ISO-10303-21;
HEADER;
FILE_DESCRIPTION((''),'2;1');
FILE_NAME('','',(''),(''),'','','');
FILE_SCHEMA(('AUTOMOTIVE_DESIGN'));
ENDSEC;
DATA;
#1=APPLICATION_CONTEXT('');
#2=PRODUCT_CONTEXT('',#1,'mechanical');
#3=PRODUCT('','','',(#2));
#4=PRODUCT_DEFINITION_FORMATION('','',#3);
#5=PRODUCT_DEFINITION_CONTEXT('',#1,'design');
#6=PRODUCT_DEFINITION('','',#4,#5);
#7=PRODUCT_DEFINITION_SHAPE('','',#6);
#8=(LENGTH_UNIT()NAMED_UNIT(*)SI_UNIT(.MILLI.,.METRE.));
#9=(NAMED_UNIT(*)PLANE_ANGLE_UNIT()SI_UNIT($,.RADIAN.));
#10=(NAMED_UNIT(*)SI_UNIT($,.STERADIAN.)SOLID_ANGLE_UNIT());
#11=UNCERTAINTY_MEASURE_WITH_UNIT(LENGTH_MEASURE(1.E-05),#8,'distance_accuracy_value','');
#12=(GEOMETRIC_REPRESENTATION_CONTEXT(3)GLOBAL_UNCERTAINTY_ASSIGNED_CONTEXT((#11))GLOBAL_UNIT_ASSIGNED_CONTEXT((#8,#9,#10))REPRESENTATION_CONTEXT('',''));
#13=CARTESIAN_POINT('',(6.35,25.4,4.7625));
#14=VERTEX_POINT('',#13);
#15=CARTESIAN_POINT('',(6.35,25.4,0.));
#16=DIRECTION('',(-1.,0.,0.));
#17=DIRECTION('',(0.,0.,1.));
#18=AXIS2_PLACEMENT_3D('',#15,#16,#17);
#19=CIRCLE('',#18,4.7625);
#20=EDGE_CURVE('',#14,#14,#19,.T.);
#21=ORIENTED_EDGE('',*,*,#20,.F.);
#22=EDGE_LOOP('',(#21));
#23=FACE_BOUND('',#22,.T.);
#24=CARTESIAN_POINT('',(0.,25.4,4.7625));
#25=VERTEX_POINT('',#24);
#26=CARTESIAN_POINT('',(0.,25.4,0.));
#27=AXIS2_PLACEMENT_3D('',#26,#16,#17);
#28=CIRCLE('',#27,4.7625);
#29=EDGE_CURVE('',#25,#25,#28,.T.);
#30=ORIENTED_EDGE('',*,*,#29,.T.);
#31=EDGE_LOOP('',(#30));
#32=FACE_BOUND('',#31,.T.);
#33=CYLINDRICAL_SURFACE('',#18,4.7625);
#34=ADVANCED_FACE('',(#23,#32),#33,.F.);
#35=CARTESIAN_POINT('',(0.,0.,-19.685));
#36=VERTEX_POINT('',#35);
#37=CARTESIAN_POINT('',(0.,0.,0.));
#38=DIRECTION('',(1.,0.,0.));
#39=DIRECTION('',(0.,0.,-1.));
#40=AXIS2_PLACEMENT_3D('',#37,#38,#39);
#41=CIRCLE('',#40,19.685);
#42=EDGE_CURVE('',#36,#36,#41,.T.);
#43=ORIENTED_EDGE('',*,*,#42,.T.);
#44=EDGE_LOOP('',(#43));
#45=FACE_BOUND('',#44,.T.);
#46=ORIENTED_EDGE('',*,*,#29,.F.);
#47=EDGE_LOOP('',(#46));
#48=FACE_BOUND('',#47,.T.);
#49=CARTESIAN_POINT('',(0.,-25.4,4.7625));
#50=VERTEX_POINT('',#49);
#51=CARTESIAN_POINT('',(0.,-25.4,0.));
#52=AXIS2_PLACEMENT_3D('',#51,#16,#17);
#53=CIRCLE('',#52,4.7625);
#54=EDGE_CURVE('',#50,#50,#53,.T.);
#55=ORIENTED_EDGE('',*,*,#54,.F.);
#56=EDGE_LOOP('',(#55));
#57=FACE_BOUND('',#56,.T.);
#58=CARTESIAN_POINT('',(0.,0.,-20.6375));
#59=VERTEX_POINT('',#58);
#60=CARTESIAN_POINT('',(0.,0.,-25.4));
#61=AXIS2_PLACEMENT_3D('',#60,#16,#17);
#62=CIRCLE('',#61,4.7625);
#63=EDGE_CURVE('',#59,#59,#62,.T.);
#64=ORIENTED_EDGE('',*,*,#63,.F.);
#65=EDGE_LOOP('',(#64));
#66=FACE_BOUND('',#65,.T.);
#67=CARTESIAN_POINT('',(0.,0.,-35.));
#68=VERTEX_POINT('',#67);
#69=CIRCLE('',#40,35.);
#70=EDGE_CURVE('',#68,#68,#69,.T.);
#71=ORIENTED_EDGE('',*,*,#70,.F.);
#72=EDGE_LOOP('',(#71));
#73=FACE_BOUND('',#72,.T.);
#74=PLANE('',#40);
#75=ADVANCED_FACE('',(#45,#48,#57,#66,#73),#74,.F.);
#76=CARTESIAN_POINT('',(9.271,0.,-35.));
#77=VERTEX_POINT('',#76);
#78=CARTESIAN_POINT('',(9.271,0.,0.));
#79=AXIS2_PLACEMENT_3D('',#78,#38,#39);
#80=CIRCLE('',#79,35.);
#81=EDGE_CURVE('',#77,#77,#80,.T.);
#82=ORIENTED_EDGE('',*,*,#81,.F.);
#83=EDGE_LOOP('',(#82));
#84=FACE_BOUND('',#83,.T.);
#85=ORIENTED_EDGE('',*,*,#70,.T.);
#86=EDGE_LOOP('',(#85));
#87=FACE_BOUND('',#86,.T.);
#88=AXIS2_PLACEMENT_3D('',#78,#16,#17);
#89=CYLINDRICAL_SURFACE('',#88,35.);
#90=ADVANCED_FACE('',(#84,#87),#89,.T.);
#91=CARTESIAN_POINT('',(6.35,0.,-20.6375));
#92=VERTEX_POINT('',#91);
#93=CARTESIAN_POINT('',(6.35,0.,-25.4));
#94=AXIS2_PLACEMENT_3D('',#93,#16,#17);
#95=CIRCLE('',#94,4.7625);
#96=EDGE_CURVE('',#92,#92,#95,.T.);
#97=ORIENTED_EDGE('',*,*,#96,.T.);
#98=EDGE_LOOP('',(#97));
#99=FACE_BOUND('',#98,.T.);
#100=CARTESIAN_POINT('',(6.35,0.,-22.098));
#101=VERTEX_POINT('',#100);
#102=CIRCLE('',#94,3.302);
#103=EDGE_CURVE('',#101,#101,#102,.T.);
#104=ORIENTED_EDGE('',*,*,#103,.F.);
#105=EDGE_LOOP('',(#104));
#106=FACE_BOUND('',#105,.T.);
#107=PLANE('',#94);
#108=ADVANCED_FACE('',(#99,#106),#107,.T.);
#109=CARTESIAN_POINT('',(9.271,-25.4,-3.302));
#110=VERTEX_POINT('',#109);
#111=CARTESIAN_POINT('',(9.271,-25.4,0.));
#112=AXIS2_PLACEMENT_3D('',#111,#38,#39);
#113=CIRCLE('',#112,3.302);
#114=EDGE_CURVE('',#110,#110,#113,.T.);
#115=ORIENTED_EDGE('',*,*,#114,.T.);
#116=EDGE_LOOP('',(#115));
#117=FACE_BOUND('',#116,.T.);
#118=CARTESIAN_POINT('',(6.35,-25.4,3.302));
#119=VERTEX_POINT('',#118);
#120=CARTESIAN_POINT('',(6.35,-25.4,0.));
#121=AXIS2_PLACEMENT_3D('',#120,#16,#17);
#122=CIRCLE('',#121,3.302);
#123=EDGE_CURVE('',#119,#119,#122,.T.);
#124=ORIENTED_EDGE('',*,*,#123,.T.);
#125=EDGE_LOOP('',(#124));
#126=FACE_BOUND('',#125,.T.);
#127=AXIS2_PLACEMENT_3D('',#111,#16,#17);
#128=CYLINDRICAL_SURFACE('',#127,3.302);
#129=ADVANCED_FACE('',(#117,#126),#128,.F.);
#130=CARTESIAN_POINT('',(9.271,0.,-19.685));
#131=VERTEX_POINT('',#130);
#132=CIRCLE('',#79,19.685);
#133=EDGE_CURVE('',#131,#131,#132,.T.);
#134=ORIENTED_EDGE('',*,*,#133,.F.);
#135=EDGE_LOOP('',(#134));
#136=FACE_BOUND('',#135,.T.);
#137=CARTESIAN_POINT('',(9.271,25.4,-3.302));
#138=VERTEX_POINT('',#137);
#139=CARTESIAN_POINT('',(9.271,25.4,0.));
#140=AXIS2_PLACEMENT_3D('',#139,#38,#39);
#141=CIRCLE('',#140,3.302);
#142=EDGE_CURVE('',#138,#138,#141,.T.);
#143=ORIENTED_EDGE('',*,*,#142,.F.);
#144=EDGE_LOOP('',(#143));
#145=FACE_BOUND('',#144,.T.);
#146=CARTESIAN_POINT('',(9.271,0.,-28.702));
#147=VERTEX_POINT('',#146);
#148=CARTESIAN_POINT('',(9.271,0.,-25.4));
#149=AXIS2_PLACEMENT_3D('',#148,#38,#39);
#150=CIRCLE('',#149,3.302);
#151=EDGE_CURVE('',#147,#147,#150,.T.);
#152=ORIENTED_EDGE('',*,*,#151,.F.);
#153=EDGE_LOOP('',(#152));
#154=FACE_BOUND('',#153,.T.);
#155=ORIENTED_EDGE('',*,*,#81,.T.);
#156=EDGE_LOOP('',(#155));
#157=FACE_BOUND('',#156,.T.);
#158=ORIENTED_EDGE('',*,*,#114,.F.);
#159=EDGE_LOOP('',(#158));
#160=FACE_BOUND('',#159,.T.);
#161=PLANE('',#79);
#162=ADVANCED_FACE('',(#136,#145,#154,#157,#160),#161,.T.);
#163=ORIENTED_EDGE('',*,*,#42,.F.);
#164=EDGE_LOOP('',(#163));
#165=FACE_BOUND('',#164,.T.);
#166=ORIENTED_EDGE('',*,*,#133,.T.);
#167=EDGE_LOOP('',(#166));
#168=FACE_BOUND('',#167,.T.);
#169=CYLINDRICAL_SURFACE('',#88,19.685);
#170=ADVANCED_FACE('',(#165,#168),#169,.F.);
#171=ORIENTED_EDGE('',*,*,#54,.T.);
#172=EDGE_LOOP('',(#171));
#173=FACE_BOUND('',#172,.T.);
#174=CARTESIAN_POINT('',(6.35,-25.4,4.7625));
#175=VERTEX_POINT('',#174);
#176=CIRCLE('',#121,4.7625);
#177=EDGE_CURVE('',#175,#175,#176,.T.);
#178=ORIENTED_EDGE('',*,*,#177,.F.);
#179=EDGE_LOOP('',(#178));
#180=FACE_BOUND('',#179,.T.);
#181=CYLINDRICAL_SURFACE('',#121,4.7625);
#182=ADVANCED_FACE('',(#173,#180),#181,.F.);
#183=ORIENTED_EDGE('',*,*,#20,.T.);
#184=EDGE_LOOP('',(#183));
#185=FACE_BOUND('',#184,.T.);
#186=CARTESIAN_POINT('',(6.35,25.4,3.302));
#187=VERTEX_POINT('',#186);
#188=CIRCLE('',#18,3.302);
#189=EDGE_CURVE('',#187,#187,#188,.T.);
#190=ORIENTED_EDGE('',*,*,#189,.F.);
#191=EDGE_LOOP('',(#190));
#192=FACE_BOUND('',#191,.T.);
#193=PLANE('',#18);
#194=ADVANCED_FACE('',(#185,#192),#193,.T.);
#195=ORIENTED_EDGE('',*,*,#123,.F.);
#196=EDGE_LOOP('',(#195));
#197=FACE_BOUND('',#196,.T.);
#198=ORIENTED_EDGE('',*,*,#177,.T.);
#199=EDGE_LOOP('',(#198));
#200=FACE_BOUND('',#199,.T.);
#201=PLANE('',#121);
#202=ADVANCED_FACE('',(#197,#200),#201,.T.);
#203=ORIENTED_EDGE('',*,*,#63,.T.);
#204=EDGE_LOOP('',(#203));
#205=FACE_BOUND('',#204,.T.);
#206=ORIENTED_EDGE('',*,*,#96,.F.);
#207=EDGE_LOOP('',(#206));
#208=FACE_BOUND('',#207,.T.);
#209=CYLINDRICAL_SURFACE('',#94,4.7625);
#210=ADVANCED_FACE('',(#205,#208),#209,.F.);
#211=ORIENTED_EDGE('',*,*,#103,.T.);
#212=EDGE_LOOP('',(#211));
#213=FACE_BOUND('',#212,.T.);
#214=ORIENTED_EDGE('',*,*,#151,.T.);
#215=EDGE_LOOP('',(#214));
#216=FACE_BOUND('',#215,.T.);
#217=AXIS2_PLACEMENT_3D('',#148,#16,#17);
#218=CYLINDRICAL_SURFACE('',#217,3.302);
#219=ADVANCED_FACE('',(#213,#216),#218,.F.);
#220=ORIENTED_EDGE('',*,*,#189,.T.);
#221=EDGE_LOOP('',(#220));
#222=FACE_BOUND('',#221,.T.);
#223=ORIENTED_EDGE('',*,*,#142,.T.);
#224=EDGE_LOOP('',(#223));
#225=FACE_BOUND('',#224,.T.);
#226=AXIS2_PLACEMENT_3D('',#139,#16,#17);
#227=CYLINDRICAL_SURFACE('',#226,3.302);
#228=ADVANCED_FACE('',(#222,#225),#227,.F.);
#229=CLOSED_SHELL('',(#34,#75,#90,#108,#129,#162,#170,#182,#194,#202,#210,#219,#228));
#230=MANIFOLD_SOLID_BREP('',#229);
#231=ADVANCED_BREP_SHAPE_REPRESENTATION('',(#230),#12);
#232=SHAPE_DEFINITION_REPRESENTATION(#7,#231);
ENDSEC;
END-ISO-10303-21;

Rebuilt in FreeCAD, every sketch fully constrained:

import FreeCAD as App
import Part
import Sketcher
from FreeCAD import Vector
Q = App.Units.Quantity

doc = App.newDocument("Part")
body = doc.addObject("PartDesign::Body", "Body")

# Sketch on YZ plane
sketch1 = body.newObject("Sketcher::SketchObject", "Sketch")
sketch1.AttachmentSupport = (doc.getObject("YZ_Plane"), [""])
sketch1.MapMode = "FlatFace"
sketch1.addGeometry([
    Part.Circle(Vector(0, 0, 0), Vector(0, 0, 1), 35),  # 0
    Part.Circle(Vector(-25.4, 0, 0), Vector(0, 0, 1), 3.302),  # 1
    Part.Circle(Vector(0, 0, 0), Vector(0, 0, 1), 19.685),  # 2
    Part.Circle(Vector(0, -25.4, 0), Vector(0, 0, 1), 3.302),  # 3
    Part.Circle(Vector(25.4, 0, 0), Vector(0, 0, 1), 3.302),  # 4
], False)
sketch1.addConstraint([
    Sketcher.Constraint("Coincident", 0, 3, -1, 1),
    Sketcher.Constraint("Coincident", 2, 3, -1, 1),
    Sketcher.Constraint("Equal", 1, 3),
    Sketcher.Constraint("Equal", 3, 4),
    Sketcher.Constraint("Symmetric", 1, 3, 4, 3, -1, 1),
    Sketcher.Constraint("PointOnObject", 1, 3, -1),
    Sketcher.Constraint("PointOnObject", 3, 3, -2),
    Sketcher.Constraint("Diameter", 1, Q("0.26 in")),
    Sketcher.Constraint("Diameter", 2, Q("1.55 in")),
    Sketcher.Constraint("DistanceX", 1, 3, -1, 1, Q("1 in")),
    Sketcher.Constraint("DistanceY", 3, 3, -1, 1, Q("1 in")),
    Sketcher.Constraint("Diameter", 0, Q("70 mm")),
])
pad1 = body.newObject("PartDesign::Pad", "Pad")
pad1.Profile = sketch1
pad1.Length = Q("0.365 in")

# Sketch on YZ plane
sketch2 = body.newObject("Sketcher::SketchObject", "Sketch001")
sketch2.AttachmentSupport = (doc.getObject("YZ_Plane"), [""])
sketch2.MapMode = "FlatFace"
sketch2.addGeometry([
    Part.Circle(Vector(25.4, 0, 0), Vector(0, 0, 1), 4.7625),
    Part.Circle(Vector(-25.4, 0, 0), Vector(0, 0, 1), 4.7625),
    Part.Circle(Vector(0, -25.4, 0), Vector(0, 0, 1), 4.7625),
], False)
sketch2.addConstraint([
    Sketcher.Constraint("Equal", 0, 1),
    Sketcher.Constraint("Equal", 1, 2),
    Sketcher.Constraint("Symmetric", 0, 3, 1, 3, -1, 1),
    Sketcher.Constraint("PointOnObject", 0, 3, -1),
    Sketcher.Constraint("PointOnObject", 2, 3, -2),
    Sketcher.Constraint("Diameter", 0, Q("0.375 in")),
    Sketcher.Constraint("DistanceX", -1, 1, 0, 3, Q("1 in")),
    Sketcher.Constraint("DistanceY", 2, 3, -1, 1, Q("1 in")),
])
pocket1 = body.newObject("PartDesign::Pocket", "Pocket")
pocket1.Profile = sketch2
pocket1.Length = Q("0.25 in")
pocket1.Reversed = True

doc.recompute()
